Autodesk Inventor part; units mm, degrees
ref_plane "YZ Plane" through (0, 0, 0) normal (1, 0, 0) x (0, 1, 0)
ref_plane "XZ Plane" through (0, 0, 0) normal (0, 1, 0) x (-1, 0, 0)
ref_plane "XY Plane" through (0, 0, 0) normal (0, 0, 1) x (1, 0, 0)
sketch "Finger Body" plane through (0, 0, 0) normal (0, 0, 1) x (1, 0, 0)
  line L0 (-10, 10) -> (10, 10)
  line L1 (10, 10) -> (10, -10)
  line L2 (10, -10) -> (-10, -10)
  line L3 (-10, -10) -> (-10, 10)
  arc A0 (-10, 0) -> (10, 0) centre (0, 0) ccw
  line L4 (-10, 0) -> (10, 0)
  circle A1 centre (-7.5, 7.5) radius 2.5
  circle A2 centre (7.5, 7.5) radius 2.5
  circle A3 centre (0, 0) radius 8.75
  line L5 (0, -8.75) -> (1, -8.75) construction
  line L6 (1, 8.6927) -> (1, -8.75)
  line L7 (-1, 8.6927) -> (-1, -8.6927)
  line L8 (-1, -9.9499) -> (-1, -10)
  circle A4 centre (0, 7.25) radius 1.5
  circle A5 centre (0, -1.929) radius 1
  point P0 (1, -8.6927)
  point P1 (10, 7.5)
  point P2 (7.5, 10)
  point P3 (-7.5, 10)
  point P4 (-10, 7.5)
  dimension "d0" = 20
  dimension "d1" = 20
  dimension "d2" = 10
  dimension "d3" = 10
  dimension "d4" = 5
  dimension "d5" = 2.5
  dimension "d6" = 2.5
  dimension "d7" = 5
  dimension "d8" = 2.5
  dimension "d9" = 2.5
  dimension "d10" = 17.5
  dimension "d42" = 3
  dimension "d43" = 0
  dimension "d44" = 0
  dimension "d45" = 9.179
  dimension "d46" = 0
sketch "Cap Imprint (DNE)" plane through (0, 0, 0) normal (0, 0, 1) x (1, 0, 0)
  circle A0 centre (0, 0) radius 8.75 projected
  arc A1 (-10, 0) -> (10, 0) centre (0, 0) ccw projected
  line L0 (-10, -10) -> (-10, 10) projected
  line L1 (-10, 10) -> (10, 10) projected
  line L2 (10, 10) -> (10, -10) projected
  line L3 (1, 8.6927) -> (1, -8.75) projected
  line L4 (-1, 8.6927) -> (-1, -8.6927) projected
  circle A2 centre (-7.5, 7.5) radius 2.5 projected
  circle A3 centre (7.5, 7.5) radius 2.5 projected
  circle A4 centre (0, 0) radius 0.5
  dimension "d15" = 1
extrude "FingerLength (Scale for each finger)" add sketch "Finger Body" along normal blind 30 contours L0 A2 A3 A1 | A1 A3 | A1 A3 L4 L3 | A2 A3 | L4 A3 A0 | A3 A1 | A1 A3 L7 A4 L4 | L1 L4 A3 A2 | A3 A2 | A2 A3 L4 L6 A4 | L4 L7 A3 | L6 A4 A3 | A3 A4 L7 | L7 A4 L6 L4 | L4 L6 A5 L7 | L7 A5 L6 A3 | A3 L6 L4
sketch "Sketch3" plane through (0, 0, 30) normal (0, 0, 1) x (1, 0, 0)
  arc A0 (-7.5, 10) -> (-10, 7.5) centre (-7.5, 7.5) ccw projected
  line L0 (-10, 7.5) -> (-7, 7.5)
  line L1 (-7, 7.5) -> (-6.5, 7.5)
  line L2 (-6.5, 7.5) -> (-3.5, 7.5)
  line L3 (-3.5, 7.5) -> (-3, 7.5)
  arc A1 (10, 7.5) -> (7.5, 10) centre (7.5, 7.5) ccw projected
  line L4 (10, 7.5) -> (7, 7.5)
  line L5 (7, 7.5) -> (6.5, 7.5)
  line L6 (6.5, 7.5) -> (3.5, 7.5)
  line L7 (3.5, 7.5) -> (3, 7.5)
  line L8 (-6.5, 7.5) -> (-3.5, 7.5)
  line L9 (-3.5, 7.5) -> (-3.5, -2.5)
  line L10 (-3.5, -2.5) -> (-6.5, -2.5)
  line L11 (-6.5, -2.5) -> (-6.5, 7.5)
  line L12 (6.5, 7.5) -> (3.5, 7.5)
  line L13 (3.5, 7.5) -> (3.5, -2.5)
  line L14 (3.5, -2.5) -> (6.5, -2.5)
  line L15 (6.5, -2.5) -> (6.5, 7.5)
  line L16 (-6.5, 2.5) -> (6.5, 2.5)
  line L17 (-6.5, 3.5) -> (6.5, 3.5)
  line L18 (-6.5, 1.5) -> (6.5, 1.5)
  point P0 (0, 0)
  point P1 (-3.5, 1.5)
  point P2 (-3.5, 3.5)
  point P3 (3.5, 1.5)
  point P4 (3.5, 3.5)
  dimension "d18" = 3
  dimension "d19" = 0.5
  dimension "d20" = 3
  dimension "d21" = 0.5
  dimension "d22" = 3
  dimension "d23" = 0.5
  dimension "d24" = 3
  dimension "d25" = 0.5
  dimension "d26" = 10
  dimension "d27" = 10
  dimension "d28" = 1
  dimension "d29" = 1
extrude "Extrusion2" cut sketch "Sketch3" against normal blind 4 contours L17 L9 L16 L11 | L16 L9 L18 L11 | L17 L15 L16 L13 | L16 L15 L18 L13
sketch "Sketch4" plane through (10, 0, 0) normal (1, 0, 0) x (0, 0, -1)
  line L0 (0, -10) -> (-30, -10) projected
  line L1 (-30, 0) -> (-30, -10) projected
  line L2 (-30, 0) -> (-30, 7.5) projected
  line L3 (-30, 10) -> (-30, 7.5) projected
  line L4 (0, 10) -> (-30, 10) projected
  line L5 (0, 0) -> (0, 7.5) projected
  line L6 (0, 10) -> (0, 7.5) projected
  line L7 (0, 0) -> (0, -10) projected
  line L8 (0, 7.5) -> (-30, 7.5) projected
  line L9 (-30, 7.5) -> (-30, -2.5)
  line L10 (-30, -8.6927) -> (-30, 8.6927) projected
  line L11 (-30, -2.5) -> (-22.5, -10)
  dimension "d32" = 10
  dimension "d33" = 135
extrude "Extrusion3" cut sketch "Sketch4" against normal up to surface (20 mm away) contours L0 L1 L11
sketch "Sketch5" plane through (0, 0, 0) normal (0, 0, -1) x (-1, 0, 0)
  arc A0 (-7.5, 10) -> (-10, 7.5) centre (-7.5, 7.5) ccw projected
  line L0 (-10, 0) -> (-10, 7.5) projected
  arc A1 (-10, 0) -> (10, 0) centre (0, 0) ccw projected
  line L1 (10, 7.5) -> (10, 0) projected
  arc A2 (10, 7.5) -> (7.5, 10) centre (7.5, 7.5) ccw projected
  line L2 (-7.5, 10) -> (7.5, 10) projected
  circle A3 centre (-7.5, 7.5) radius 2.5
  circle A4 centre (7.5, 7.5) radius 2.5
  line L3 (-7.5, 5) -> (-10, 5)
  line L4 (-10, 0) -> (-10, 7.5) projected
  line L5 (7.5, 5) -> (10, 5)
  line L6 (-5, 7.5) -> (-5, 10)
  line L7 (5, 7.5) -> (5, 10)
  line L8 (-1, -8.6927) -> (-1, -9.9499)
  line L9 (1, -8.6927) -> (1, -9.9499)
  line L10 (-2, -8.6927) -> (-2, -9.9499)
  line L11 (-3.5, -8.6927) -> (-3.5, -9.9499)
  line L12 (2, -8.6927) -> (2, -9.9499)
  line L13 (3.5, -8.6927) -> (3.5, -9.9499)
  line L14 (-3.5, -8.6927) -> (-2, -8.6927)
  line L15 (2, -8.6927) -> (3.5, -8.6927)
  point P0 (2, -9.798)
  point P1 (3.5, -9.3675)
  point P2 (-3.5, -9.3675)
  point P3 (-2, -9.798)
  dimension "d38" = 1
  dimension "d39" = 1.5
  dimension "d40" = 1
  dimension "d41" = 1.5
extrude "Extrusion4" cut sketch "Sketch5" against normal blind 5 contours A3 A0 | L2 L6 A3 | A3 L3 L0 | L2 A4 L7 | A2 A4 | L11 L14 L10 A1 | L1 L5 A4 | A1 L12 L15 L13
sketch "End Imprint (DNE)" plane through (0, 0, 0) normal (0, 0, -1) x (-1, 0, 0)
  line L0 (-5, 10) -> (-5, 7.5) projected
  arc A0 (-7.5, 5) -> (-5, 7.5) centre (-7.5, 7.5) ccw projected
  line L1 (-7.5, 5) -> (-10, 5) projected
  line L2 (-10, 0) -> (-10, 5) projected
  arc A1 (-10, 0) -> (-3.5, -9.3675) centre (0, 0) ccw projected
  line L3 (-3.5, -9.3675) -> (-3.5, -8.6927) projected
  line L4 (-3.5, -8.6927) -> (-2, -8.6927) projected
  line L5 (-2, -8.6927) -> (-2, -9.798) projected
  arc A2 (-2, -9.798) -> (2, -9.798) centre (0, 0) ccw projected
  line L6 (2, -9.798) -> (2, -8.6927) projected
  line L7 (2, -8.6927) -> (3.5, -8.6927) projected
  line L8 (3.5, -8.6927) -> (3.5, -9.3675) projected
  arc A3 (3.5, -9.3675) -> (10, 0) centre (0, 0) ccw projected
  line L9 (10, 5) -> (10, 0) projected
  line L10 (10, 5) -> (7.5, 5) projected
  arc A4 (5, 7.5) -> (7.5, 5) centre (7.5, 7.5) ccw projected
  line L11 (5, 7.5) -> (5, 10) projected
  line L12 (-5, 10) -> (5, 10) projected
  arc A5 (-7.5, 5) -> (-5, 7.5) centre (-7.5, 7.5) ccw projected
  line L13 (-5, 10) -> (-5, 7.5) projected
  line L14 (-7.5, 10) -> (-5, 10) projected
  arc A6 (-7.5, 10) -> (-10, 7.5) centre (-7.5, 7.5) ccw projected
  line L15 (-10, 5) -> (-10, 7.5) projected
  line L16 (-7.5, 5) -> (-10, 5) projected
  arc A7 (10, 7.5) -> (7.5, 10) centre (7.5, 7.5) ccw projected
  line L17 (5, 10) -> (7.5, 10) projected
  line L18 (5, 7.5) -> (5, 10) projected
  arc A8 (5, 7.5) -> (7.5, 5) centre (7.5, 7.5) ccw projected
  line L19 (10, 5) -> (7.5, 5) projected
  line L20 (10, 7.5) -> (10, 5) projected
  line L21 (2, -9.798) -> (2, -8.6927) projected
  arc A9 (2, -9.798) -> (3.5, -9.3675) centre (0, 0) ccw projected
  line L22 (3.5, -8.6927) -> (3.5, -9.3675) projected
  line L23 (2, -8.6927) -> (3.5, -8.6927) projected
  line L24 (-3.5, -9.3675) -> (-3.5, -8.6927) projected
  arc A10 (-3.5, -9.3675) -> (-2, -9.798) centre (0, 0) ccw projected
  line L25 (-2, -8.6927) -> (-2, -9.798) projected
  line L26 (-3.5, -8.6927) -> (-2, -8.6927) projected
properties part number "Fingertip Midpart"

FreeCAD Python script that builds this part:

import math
import FreeCAD as App
import Part
import Sketcher
Q = App.Units.Quantity

doc = App.newDocument("Part")
body = doc.addObject("PartDesign::Body", "Body")

# Sketch on XY plane
sketch1 = doc.addObject("Sketcher::SketchObject", "Sketch")
body.addObject(sketch1)
sketch1.AttachmentSupport = (doc.XY_Plane, [""])
sketch1.MapMode = "FlatFace"
sketch1.addGeometry([
    Part.LineSegment(App.Vector(7.5, 10, 0), App.Vector(-7.5, 10, 0)),  # 0
    Part.ArcOfCircle(Part.Circle(App.Vector(-7.5, 7.5, 0), App.Vector(0, 0, 1), 2.5), math.radians(90), math.radians(180)),  # 1
    Part.LineSegment(App.Vector(-10, 7.5, 0), App.Vector(-10, 0, 0)),  # 2
    Part.ArcOfCircle(Part.Circle(App.Vector(0, 0, 0), App.Vector(0, 0, 1), 10), math.radians(180), math.radians(360)),  # 3
    Part.LineSegment(App.Vector(10, 0, 0), App.Vector(10, 7.5, 0)),  # 4
    Part.ArcOfCircle(Part.Circle(App.Vector(7.5, 7.5, 0), App.Vector(0, 0, 1), 2.5), math.radians(0), math.radians(89.999999)),  # 5
    Part.Circle(App.Vector(0, 7.25, 0), App.Vector(0, 0, 1), 1.5),  # 6
    Part.Circle(App.Vector(0, -1.929, 0), App.Vector(0, 0, 1), 1),  # 7
], False)
sketch1.addConstraint([
    Sketcher.Constraint("Tangent", 0, 2, 1, 1),
    Sketcher.Constraint("Tangent", 1, 2, 2, 1),
    Sketcher.Constraint("Tangent", 2, 2, 3, 1),
    Sketcher.Constraint("Tangent", 3, 2, 4, 1),
    Sketcher.Constraint("Tangent", 4, 2, 5, 1),
    Sketcher.Constraint("Tangent", 5, 2, 0, 1),
    Sketcher.Constraint("Horizontal", 0),
    Sketcher.Constraint("Vertical", 2),
    Sketcher.Constraint("Vertical", 4),
    Sketcher.Constraint("Coincident", 3, 3, -1, 1),
    Sketcher.Constraint("Equal", 1, 5),
    Sketcher.Constraint("PointOnObject", 6, 3, -2),
    Sketcher.Constraint("PointOnObject", 7, 3, -2),
    Sketcher.Constraint("Diameter", 6, Q("3 mm")),
    Sketcher.Constraint("Radius", 3, Q("10 mm")),
    Sketcher.Constraint("Radius", 1, Q("2.5 mm")),
    Sketcher.Constraint("Diameter", 7, Q("2 mm")),
    Sketcher.Constraint("DistanceY", -1, 1, 0, 2, Q("10 mm")),
    Sketcher.Constraint("DistanceY", 7, 3, 6, 3, Q("9.179 mm")),
    Sketcher.Constraint("DistanceY", -1, 1, 6, 3, Q("7.25 mm")),
])
pad1 = doc.addObject("PartDesign::Pad", "Pad")
body.addObject(pad1)
pad1.Profile = sketch1
pad1.Length = 30

# Sketch on XY plane
sketch2 = doc.addObject("Sketcher::SketchObject", "Sketch001")
body.addObject(sketch2)
sketch2.AttachmentSupport = (doc.XY_Plane, [""])
sketch2.MapMode = "FlatFace"
sketch2.AttachmentOffset = App.Placement(App.Vector(0, 0, 30), App.Rotation())
sketch2.addGeometry([
    Part.LineSegment(App.Vector(-3.5, 3.5, 0), App.Vector(-6.5, 3.5, 0)),  # 0
    Part.LineSegment(App.Vector(-6.5, 3.5, 0), App.Vector(-6.5, 1.5, 0)),  # 1
    Part.LineSegment(App.Vector(-6.5, 1.5, 0), App.Vector(-3.5, 1.5, 0)),  # 2
    Part.LineSegment(App.Vector(-3.5, 1.5, 0), App.Vector(-3.5, 3.5, 0)),  # 3
    Part.LineSegment(App.Vector(6.5, 3.5, 0), App.Vector(3.5, 3.5, 0)),  # 4
    Part.LineSegment(App.Vector(3.5, 3.5, 0), App.Vector(3.5, 1.5, 0)),  # 5
    Part.LineSegment(App.Vector(3.5, 1.5, 0), App.Vector(6.5, 1.5, 0)),  # 6
    Part.LineSegment(App.Vector(6.5, 1.5, 0), App.Vector(6.5, 3.5, 0)),  # 7
], False)
sketch2.addConstraint([
    Sketcher.Constraint("Coincident", 0, 2, 1, 1),
    Sketcher.Constraint("Coincident", 1, 2, 2, 1),
    Sketcher.Constraint("Coincident", 2, 2, 3, 1),
    Sketcher.Constraint("Coincident", 3, 2, 0, 1),
    Sketcher.Constraint("Coincident", 4, 2, 5, 1),
    Sketcher.Constraint("Coincident", 5, 2, 6, 1),
    Sketcher.Constraint("Coincident", 6, 2, 7, 1),
    Sketcher.Constraint("Coincident", 7, 2, 4, 1),
    Sketcher.Constraint("Horizontal", 0),
    Sketcher.Constraint("Vertical", 1),
    Sketcher.Constraint("Horizontal", 2),
    Sketcher.Constraint("Vertical", 3),
    Sketcher.Constraint("Horizontal", 4),
    Sketcher.Constraint("Vertical", 5),
    Sketcher.Constraint("Horizontal", 6),
    Sketcher.Constraint("Vertical", 7),
    Sketcher.Constraint("Symmetric", 3, 2, 4, 2, -2),
    Sketcher.Constraint("Symmetric", 1, 2, 6, 2, -2),
    Sketcher.Constraint("DistanceX", 0, 2, 0, 1, Q("3 mm")),
    Sketcher.Constraint("DistanceX", 0, 2, 4, 2, Q("10 mm")),
    Sketcher.Constraint("DistanceY", 1, 2, 1, 1, Q("2 mm")),
    Sketcher.Constraint("DistanceY", -1, 1, 0, 2, Q("3.5 mm")),
])
pocket1 = doc.addObject("PartDesign::Pocket", "Pocket")
body.addObject(pocket1)
pocket1.Profile = sketch2
pocket1.Length = 4

# Sketch on YZ plane
sketch3 = doc.addObject("Sketcher::SketchObject", "Sketch002")
body.addObject(sketch3)
sketch3.AttachmentSupport = (doc.YZ_Plane, [""])
sketch3.MapMode = "FlatFace"
sketch3.AttachmentOffset = App.Placement(App.Vector(0, 0, 10), App.Rotation())
sketch3.addGeometry([
    Part.LineSegment(App.Vector(-10, 30, 0), App.Vector(-10, 22.5, 0)),
    Part.LineSegment(App.Vector(-10, 22.5, 0), App.Vector(-2.5, 30, 0)),
    Part.LineSegment(App.Vector(-2.5, 30, 0), App.Vector(-10, 30, 0)),
], False)
sketch3.addConstraint([
    Sketcher.Constraint("Coincident", 0, 2, 1, 1),
    Sketcher.Constraint("Coincident", 1, 2, 2, 1),
    Sketcher.Constraint("Coincident", 2, 2, 0, 1),
    Sketcher.Constraint("Vertical", 0),
    Sketcher.Constraint("Horizontal", 2),
    Sketcher.Constraint("Equal", 2, 0),
    Sketcher.Constraint("DistanceX", 0, 2, -1, 1, Q("10 mm")),
    Sketcher.Constraint("DistanceX", 2, 2, 2, 1, Q("7.5 mm")),
    Sketcher.Constraint("DistanceY", -1, 1, 1, 2, Q("30 mm")),
])
pocket2 = doc.addObject("PartDesign::Pocket", "Pocket001")
body.addObject(pocket2)
pocket2.Profile = sketch3
pocket2.Length = 20

# Sketch on XY plane
sketch4 = doc.addObject("Sketcher::SketchObject", "Sketch003")
body.addObject(sketch4)
sketch4.AttachmentSupport = (doc.XY_Plane, [""])
sketch4.MapMode = "FlatFace"
sketch4.addGeometry([
    Part.ArcOfCircle(Part.Circle(App.Vector(7.5, 7.5, 0), App.Vector(0, 0, 1), 2.5), math.radians(180), math.radians(270)),  # 0
    Part.LineSegment(App.Vector(5, 7.5, 0), App.Vector(5, 10, 0)),  # 1
    Part.LineSegment(App.Vector(5, 10, 0), App.Vector(7.5, 10, 0)),  # 2
    Part.ArcOfCircle(Part.Circle(App.Vector(7.5, 7.5, 0), App.Vector(0, 0, 1), 2.5), math.radians(0), math.radians(90)),  # 3
    Part.LineSegment(App.Vector(10, 7.5, 0), App.Vector(10, 5, 0)),  # 4
    Part.LineSegment(App.Vector(10, 5, 0), App.Vector(7.5, 5, 0)),  # 5
    Part.LineSegment(App.Vector(-7.5, 10, 0), App.Vector(-5, 10, 0)),  # 6
    Part.LineSegment(App.Vector(-5, 10, 0), App.Vector(-5, 7.5, 0)),  # 7
    Part.ArcOfCircle(Part.Circle(App.Vector(-7.5, 7.5, 0), App.Vector(0, 0, 1), 2.5), math.radians(-90), math.radians(0)),  # 8
    Part.LineSegment(App.Vector(-7.5, 5, 0), App.Vector(-10, 5, 0)),  # 9
    Part.LineSegment(App.Vector(-10, 5, 0), App.Vector(-10, 7.5, 0)),  # 10
    Part.ArcOfCircle(Part.Circle(App.Vector(-7.5, 7.5, 0), App.Vector(0, 0, 1), 2.5), math.radians(90), math.radians(180)),  # 11
    Part.LineSegment(App.Vector(3.5, -8.6927, 0), App.Vector(3.5, -9.367497, 0)),  # 12
    Part.ArcOfCircle(Part.Circle(App.Vector(0, 0, 0), App.Vector(0, 0, 1), 10), math.radians(-78.463041), math.radians(-69.512685)),  # 13
    Part.LineSegment(App.Vector(2, -9.797959, 0), App.Vector(2, -8.6927, 0)),  # 14
    Part.LineSegment(App.Vector(2, -8.6927, 0), App.Vector(3.5, -8.6927, 0)),  # 15
    Part.ArcOfCircle(Part.Circle(App.Vector(0, 0, 0), App.Vector(0, 0, 1), 10), math.radians(-110.487315), math.radians(-101.536959)),  # 16
    Part.LineSegment(App.Vector(-3.5, -9.367497, 0), App.Vector(-3.5, -8.6927, 0)),  # 17
    Part.LineSegment(App.Vector(-3.5, -8.6927, 0), App.Vector(-2, -8.6927, 0)),  # 18
    Part.LineSegment(App.Vector(-2, -8.6927, 0), App.Vector(-2, -9.797959, 0)),  # 19
], False)
sketch4.addConstraint([
    Sketcher.Constraint("Tangent", 0, 1, 1, 1),
    Sketcher.Constraint("Coincident", 1, 2, 2, 1),
    Sketcher.Constraint("Tangent", 2, 2, 3, 2),
    Sketcher.Constraint("Tangent", 3, 1, 4, 1),
    Sketcher.Constraint("Coincident", 4, 2, 5, 1),
    Sketcher.Constraint("Tangent", 5, 2, 0, 2),
    Sketcher.Constraint("Coincident", 6, 2, 7, 1),
    Sketcher.Constraint("Tangent", 7, 2, 8, 2),
    Sketcher.Constraint("Tangent", 8, 1, 9, 1),
    Sketcher.Constraint("Coincident", 9, 2, 10, 1),
    Sketcher.Constraint("Tangent", 10, 2, 11, 2),
    Sketcher.Constraint("Tangent", 11, 1, 6, 1),
    Sketcher.Constraint("Coincident", 12, 2, 13, 2),
    Sketcher.Constraint("Coincident", 13, 1, 14, 1),
    Sketcher.Constraint("Coincident", 14, 2, 15, 1),
    Sketcher.Constraint("Coincident", 15, 2, 12, 1),
    Sketcher.Constraint("Coincident", 16, 1, 17, 1),
    Sketcher.Constraint("Coincident", 17, 2, 18, 1),
    Sketcher.Constraint("Coincident", 18, 2, 19, 1),
    Sketcher.Constraint("Coincident", 19, 2, 16, 2),
    Sketcher.Constraint("Vertical", 1),
    Sketcher.Constraint("Horizontal", 2),
    Sketcher.Constraint("Vertical", 4),
    Sketcher.Constraint("Horizontal", 5),
    Sketcher.Constraint("Horizontal", 6),
    Sketcher.Constraint("Vertical", 7),
    Sketcher.Constraint("Horizontal", 9),
    Sketcher.Constraint("Vertical", 10),
    Sketcher.Constraint("Vertical", 12),
    Sketcher.Constraint("Vertical", 14),
    Sketcher.Constraint("Horizontal", 15),
    Sketcher.Constraint("Vertical", 17),
    Sketcher.Constraint("Horizontal", 18),
    Sketcher.Constraint("Vertical", 19),
    Sketcher.Constraint("Coincident", 13, 3, -1, 1),
    Sketcher.Constraint("Coincident", 16, 3, -1, 1),
    Sketcher.Constraint("Coincident", 3, 3, 0, 3),
    Sketcher.Constraint("Coincident", 11, 3, 8, 3),
    Sketcher.Constraint("Equal", 0, 3),
    Sketcher.Constraint("Equal", 3, 8),
    Sketcher.Constraint("Equal", 8, 11),
    Sketcher.Constraint("Equal", 13, 16),
    Sketcher.Constraint("Symmetric", 0, 3, 8, 3, -2),
    Sketcher.Constraint("Symmetric", 15, 2, 17, 2, -2),
    Sketcher.Constraint("Horizontal", 13, 1, 19, 2),
    Sketcher.Constraint("DistanceX", 15, 1, 15, 2, Q("1.5 mm")),
    Sketcher.Constraint("Radius", 13, Q("10 mm")),
    Sketcher.Constraint("Radius", 0, Q("2.5 mm")),
    Sketcher.Constraint("DistanceX", 12, 2, 0, 1, Q("1.5 mm")),
    Sketcher.Constraint("DistanceX", -1, 1, 0, 1, Q("5 mm")),
    Sketcher.Constraint("DistanceY", -1, 1, 1, 2, Q("10 mm")),
    Sketcher.Constraint("DistanceY", 12, 2, 12, 1, Q("0.6748 mm")),
])
pocket3 = doc.addObject("PartDesign::Pocket", "Pocket002")
body.addObject(pocket3)
pocket3.Profile = sketch4
pocket3.Length = 5
pocket3.Reversed = True

doc.recompute()
